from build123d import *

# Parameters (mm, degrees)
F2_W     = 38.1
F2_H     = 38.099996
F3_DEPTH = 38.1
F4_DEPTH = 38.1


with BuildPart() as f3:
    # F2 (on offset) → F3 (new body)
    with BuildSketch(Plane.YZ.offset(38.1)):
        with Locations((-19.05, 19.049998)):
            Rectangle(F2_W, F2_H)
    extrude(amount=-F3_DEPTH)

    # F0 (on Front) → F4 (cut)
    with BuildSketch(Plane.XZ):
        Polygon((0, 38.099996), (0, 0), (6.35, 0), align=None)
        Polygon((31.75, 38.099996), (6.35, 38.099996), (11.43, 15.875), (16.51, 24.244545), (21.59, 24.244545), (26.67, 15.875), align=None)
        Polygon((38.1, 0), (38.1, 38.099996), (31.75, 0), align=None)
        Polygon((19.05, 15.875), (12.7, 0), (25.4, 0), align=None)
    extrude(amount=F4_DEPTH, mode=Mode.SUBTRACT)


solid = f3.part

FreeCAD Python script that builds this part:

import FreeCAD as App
import Part
import Sketcher
Q = App.Units.Quantity

doc = App.newDocument("Part")
params = doc.addObject("Spreadsheet::Sheet", "Params")
for row, (alias, value) in enumerate([
    ("sketch1_width", "1.5 in"),
    ("sketch1_height", "1.4999998 in"),
    ("pad1_length", "1.5 in"),
    ("sketch2_width", "1 in"),
    ("sketch2_width2", "0.2 in"),
    ("sketch2_width3", "0.5 in"),
    ("sketch2_height", "1.4999998 in"),
    ("sketch2_width4", "0.25 in"),
    ("pocket1_length", "1.5 in"),
], start=1):
    params.set(f"A{row}", alias)
    params.set(f"B{row}", "=" + value)
    params.setAlias(f"B{row}", alias)

body = doc.addObject("PartDesign::Body", "Body")

# Sketch on YZ plane
sketch1 = body.newObject("Sketcher::SketchObject", "Sketch")
sketch1.AttachmentSupport = (doc.getObject("YZ_Plane"), [""])
sketch1.MapMode = "FlatFace"
sketch1.AttachmentOffset = App.Placement(App.Vector(0, 0, 1.5 * 25.4), App.Rotation())
sketch1.addGeometry([
    Part.LineSegment(App.Vector(-38, 38, 0), App.Vector(-38, 0, 0)),
    Part.LineSegment(App.Vector(-38, 0, 0), App.Vector(0, 0, 0)),
    Part.LineSegment(App.Vector(0, 0, 0), App.Vector(0, 38, 0)),
    Part.LineSegment(App.Vector(0, 38, 0), App.Vector(-38, 38, 0)),
], False)
sketch1.addConstraint([
    Sketcher.Constraint("Coincident", 0, 2, 1, 1),
    Sketcher.Constraint("Coincident", 1, 2, 2, 1),
    Sketcher.Constraint("Coincident", 2, 2, 3, 1),
    Sketcher.Constraint("Coincident", 3, 2, 0, 1),
    Sketcher.Constraint("Vertical", 0),
    Sketcher.Constraint("Horizontal", 1),
    Sketcher.Constraint("Vertical", 2),
    Sketcher.Constraint("Horizontal", 3),
    Sketcher.Constraint("Coincident", 1, 2, -1, 1),
    Sketcher.Constraint("DistanceX", 1, 1, 1, 2, Q("1.5 in")),
    Sketcher.Constraint("DistanceY", 0, 2, 0, 1, Q("1.4999998 in")),
])
sketch1.setExpression("Constraints[9]", "Params.sketch1_width")
sketch1.setExpression("Constraints[10]", "Params.sketch1_height")
pad1 = body.newObject("PartDesign::Pad", "Pad")
pad1.Profile = sketch1
pad1.setExpression("Length", "Params.pad1_length")
pad1.Reversed = True

# Sketch on XZ plane
sketch2 = body.newObject("Sketcher::SketchObject", "Sketch001")
sketch2.AttachmentSupport = (doc.getObject("XZ_Plane"), [""])
sketch2.MapMode = "FlatFace"
sketch2.addGeometry([
    Part.LineSegment(App.Vector(0, 38, 0), App.Vector(0, 0, 0)),  # 0
    Part.LineSegment(App.Vector(0, 0, 0), App.Vector(6, 0, 0)),  # 1
    Part.LineSegment(App.Vector(6, 0, 0), App.Vector(0, 38, 0)),  # 2
    Part.LineSegment(App.Vector(32, 38, 0), App.Vector(6, 38, 0)),  # 3
    Part.LineSegment(App.Vector(6, 38, 0), App.Vector(11, 16, 0)),  # 4
    Part.LineSegment(App.Vector(11, 16, 0), App.Vector(17, 24, 0)),  # 5
    Part.LineSegment(App.Vector(17, 24, 0), App.Vector(22, 24, 0)),  # 6
    Part.LineSegment(App.Vector(22, 24, 0), App.Vector(27, 16, 0)),  # 7
    Part.LineSegment(App.Vector(27, 16, 0), App.Vector(32, 38, 0)),  # 8
    Part.LineSegment(App.Vector(38, 0, 0), App.Vector(38, 38, 0)),  # 9
    Part.LineSegment(App.Vector(38, 38, 0), App.Vector(32, 0, 0)),  # 10
    Part.LineSegment(App.Vector(32, 0, 0), App.Vector(38, 0, 0)),  # 11
    Part.LineSegment(App.Vector(19, 16, 0), App.Vector(13, 0, 0)),  # 12
    Part.LineSegment(App.Vector(13, 0, 0), App.Vector(25, 0, 0)),  # 13
    Part.LineSegment(App.Vector(25, 0, 0), App.Vector(19, 16, 0)),  # 14
], False)
sketch2.addConstraint([
    Sketcher.Constraint("Coincident", 0, 2, 1, 1),
    Sketcher.Constraint("Coincident", 1, 2, 2, 1),
    Sketcher.Constraint("Coincident", 2, 2, 0, 1),
    Sketcher.Constraint("Coincident", 3, 2, 4, 1),
    Sketcher.Constraint("Coincident", 4, 2, 5, 1),
    Sketcher.Constraint("Coincident", 5, 2, 6, 1),
    Sketcher.Constraint("Coincident", 6, 2, 7, 1),
    Sketcher.Constraint("Coincident", 7, 2, 8, 1),
    Sketcher.Constraint("Coincident", 8, 2, 3, 1),
    Sketcher.Constraint("Coincident", 9, 2, 10, 1),
    Sketcher.Constraint("Coincident", 10, 2, 11, 1),
    Sketcher.Constraint("Coincident", 11, 2, 9, 1),
    Sketcher.Constraint("Coincident", 12, 2, 13, 1),
    Sketcher.Constraint("Coincident", 13, 2, 14, 1),
    Sketcher.Constraint("Coincident", 14, 2, 12, 1),
    Sketcher.Constraint("Vertical", 0),
    Sketcher.Constraint("Horizontal", 1),
    Sketcher.Constraint("Horizontal", 3),
    Sketcher.Constraint("Horizontal", 6),
    Sketcher.Constraint("Vertical", 9),
    Sketcher.Constraint("Horizontal", 11),
    Sketcher.Constraint("Horizontal", 13),
    Sketcher.Constraint("Coincident", 0, 2, -1, 1),
    Sketcher.Constraint("PointOnObject", 10, 2, -1),
    Sketcher.Constraint("PointOnObject", 12, 2, -1),
    Sketcher.Constraint("Horizontal", 2, 2, 3, 2),
    Sketcher.Constraint("Horizontal", 4, 2, 7, 2),
    Sketcher.Constraint("Horizontal", 8, 2, 9, 2),
    Sketcher.Constraint("Horizontal", 7, 2, 14, 2),
    Sketcher.Constraint("Vertical", 1, 2, 3, 2),
    Sketcher.Constraint("Vertical", 8, 2, 10, 2),
    Sketcher.Constraint("Equal", 1, 11),
    Sketcher.Constraint("Equal", 5, 7),
    Sketcher.Constraint("Equal", 4, 8),
    Sketcher.Constraint("Equal", 12, 14),
    Sketcher.Constraint("DistanceX", 3, 2, 3, 1, Q("1 in")),
    Sketcher.Constraint("DistanceX", 6, 1, 6, 2, Q("0.2 in")),
    Sketcher.Constraint("DistanceX", 13, 1, 13, 2, Q("0.5 in")),
    Sketcher.Constraint("DistanceY", 0, 2, 0, 1, Q("1.4999998 in")),
    Sketcher.Constraint("DistanceX", -1, 1, 13, 2, Q("1 in")),
    Sketcher.Constraint("DistanceX", 1, 1, 1, 2, Q("0.25 in")),
    Sketcher.Constraint("DistanceX", 1, 2, 4, 2, Q("0.2 in")),
    Sketcher.Constraint("DistanceY", -1, 1, 4, 2, Q("0.625 in")),
    Sketcher.Constraint("Distance", 5, Q("9.790592 mm")),
])
sketch2.setExpression("Constraints[35]", "Params.sketch2_width")
sketch2.setExpression("Constraints[36]", "Params.sketch2_width2")
sketch2.setExpression("Constraints[37]", "Params.sketch2_width3")
sketch2.setExpression("Constraints[38]", "Params.sketch2_height")
sketch2.setExpression("Constraints[40]", "Params.sketch2_width4")
pocket1 = body.newObject("PartDesign::Pocket", "Pocket")
pocket1.Profile = sketch2
pocket1.setExpression("Length", "Params.pocket1_length")
pocket1.Reversed = True

doc.recompute()
